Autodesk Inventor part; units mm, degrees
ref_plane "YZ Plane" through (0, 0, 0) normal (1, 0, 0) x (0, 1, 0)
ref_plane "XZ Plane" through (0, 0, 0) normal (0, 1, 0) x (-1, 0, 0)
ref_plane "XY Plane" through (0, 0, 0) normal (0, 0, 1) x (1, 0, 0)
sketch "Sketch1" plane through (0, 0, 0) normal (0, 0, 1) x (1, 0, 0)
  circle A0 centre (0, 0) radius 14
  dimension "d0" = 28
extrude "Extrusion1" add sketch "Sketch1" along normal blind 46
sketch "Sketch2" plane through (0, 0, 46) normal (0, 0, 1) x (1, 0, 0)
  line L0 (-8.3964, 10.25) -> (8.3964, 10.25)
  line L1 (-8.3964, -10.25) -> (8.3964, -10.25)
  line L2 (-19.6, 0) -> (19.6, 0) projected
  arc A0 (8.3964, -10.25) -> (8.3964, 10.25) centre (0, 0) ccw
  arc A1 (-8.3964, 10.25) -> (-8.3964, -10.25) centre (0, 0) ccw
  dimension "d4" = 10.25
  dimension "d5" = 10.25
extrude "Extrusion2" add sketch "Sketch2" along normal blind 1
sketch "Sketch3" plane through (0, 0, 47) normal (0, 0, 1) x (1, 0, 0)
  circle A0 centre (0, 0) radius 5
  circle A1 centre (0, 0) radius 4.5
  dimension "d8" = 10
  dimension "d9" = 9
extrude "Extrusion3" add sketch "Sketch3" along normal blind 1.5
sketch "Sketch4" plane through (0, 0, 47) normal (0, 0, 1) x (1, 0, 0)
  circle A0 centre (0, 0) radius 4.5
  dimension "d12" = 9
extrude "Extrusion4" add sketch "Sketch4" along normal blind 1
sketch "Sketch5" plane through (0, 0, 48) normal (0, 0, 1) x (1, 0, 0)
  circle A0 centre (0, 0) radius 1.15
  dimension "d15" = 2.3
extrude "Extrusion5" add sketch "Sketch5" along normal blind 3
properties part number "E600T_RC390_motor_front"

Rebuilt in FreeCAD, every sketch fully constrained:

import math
import FreeCAD as App
import Part
import Sketcher

V = App.Vector
Q = App.Units.Quantity

doc = App.newDocument("Part")
body = doc.addObject("PartDesign::Body", "Body")

# Sketch on XY plane
sketch1 = body.newObject("Sketcher::SketchObject", "Sketch")
sketch1.AttachmentSupport = (doc.getObject("XY_Plane"), [""])
sketch1.MapMode = "FlatFace"
sketch1.addGeometry(Part.Circle(V(0, 0, 0), V(0, 0, 1), 14), False)
sketch1.addConstraint(Sketcher.Constraint("Coincident", 0, 3, -1, 1))
sketch1.addConstraint(Sketcher.Constraint("Diameter", 0, Q("28 mm")))
pad1 = body.newObject("PartDesign::Pad", "Pad")
pad1.Profile = sketch1
pad1.Length = 46

# Sketch on XY plane
sketch2 = body.newObject("Sketcher::SketchObject", "Sketch001")
sketch2.AttachmentSupport = (doc.getObject("XY_Plane"), [""])
sketch2.MapMode = "FlatFace"
sketch2.AttachmentOffset = App.Placement(V(0, 0, 46), App.Rotation())
sketch2.addGeometry(Part.LineSegment(V(8, 10, 0), V(-8, 10, 0)), False)
sketch2.addGeometry(Part.ArcOfCircle(Part.Circle(V(0, 0, 0), V(0, 0, 1), 13), math.radians(129), math.radians(231)), False)
sketch2.addGeometry(Part.LineSegment(V(-8, -10, 0), V(8, -10, 0)), False)
sketch2.addGeometry(Part.ArcOfCircle(Part.Circle(V(0, 0, 0), V(0, 0, 1), 13), math.radians(-51), math.radians(51)), False)
sketch2.addConstraint(Sketcher.Constraint("Coincident", 0, 2, 1, 1))
sketch2.addConstraint(Sketcher.Constraint("Coincident", 1, 2, 2, 1))
sketch2.addConstraint(Sketcher.Constraint("Coincident", 2, 2, 3, 1))
sketch2.addConstraint(Sketcher.Constraint("Coincident", 3, 2, 0, 1))
sketch2.addConstraint(Sketcher.Constraint("Horizontal", 0))
sketch2.addConstraint(Sketcher.Constraint("Horizontal", 2))
sketch2.addConstraint(Sketcher.Constraint("Coincident", 1, 3, -1, 1))
sketch2.addConstraint(Sketcher.Constraint("Coincident", 3, 3, -1, 1))
sketch2.addConstraint(Sketcher.Constraint("Equal", 1, 3))
sketch2.addConstraint(Sketcher.Constraint("Vertical", 0, 2, 1, 2))
sketch2.addConstraint(Sketcher.Constraint("DistanceY", -1, 1, 0, 2, Q("10.25 mm")))
sketch2.addConstraint(Sketcher.Constraint("Radius", 1, Q("13.25 mm")))
pad2 = body.newObject("PartDesign::Pad", "Pad001")
pad2.Profile = sketch2
pad2.Length = 1

# Sketch on XY plane
sketch3 = body.newObject("Sketcher::SketchObject", "Sketch002")
sketch3.AttachmentSupport = (doc.getObject("XY_Plane"), [""])
sketch3.MapMode = "FlatFace"
sketch3.AttachmentOffset = App.Placement(V(0, 0, 47), App.Rotation())
sketch3.addGeometry(Part.Circle(V(0, 0, 0), V(0, 0, 1), 5), False)
sketch3.addGeometry(Part.Circle(V(0, 0, 0), V(0, 0, 1), 4.5), False)
sketch3.addConstraint(Sketcher.Constraint("Coincident", 0, 3, -1, 1))
sketch3.addConstraint(Sketcher.Constraint("Coincident", 1, 3, -1, 1))
sketch3.addConstraint(Sketcher.Constraint("Diameter", 0, Q("10 mm")))
sketch3.addConstraint(Sketcher.Constraint("Diameter", 1, Q("9 mm")))
pad3 = body.newObject("PartDesign::Pad", "Pad002")
pad3.Profile = sketch3
pad3.Length = 1.5

# Sketch on XY plane
sketch4 = body.newObject("Sketcher::SketchObject", "Sketch003")
sketch4.AttachmentSupport = (doc.getObject("XY_Plane"), [""])
sketch4.MapMode = "FlatFace"
sketch4.AttachmentOffset = App.Placement(V(0, 0, 47), App.Rotation())
sketch4.addGeometry(Part.Circle(V(0, 0, 0), V(0, 0, 1), 4.5), False)
sketch4.addConstraint(Sketcher.Constraint("Coincident", 0, 3, -1, 1))
sketch4.addConstraint(Sketcher.Constraint("Diameter", 0, Q("9 mm")))
pad4 = body.newObject("PartDesign::Pad", "Pad003")
pad4.Profile = sketch4
pad4.Length = 1

# Sketch on XY plane
sketch5 = body.newObject("Sketcher::SketchObject", "Sketch004")
sketch5.AttachmentSupport = (doc.getObject("XY_Plane"), [""])
sketch5.MapMode = "FlatFace"
sketch5.AttachmentOffset = App.Placement(V(0, 0, 48), App.Rotation())
sketch5.addGeometry(Part.Circle(V(0, 0, 0), V(0, 0, 1), 1.1), False)
sketch5.addConstraint(Sketcher.Constraint("Coincident", 0, 3, -1, 1))
sketch5.addConstraint(Sketcher.Constraint("Diameter", 0, Q("2.3 mm")))
pad5 = body.newObject("PartDesign::Pad", "Pad004")
pad5.Profile = sketch5
pad5.Length = 3

doc.recompute()
